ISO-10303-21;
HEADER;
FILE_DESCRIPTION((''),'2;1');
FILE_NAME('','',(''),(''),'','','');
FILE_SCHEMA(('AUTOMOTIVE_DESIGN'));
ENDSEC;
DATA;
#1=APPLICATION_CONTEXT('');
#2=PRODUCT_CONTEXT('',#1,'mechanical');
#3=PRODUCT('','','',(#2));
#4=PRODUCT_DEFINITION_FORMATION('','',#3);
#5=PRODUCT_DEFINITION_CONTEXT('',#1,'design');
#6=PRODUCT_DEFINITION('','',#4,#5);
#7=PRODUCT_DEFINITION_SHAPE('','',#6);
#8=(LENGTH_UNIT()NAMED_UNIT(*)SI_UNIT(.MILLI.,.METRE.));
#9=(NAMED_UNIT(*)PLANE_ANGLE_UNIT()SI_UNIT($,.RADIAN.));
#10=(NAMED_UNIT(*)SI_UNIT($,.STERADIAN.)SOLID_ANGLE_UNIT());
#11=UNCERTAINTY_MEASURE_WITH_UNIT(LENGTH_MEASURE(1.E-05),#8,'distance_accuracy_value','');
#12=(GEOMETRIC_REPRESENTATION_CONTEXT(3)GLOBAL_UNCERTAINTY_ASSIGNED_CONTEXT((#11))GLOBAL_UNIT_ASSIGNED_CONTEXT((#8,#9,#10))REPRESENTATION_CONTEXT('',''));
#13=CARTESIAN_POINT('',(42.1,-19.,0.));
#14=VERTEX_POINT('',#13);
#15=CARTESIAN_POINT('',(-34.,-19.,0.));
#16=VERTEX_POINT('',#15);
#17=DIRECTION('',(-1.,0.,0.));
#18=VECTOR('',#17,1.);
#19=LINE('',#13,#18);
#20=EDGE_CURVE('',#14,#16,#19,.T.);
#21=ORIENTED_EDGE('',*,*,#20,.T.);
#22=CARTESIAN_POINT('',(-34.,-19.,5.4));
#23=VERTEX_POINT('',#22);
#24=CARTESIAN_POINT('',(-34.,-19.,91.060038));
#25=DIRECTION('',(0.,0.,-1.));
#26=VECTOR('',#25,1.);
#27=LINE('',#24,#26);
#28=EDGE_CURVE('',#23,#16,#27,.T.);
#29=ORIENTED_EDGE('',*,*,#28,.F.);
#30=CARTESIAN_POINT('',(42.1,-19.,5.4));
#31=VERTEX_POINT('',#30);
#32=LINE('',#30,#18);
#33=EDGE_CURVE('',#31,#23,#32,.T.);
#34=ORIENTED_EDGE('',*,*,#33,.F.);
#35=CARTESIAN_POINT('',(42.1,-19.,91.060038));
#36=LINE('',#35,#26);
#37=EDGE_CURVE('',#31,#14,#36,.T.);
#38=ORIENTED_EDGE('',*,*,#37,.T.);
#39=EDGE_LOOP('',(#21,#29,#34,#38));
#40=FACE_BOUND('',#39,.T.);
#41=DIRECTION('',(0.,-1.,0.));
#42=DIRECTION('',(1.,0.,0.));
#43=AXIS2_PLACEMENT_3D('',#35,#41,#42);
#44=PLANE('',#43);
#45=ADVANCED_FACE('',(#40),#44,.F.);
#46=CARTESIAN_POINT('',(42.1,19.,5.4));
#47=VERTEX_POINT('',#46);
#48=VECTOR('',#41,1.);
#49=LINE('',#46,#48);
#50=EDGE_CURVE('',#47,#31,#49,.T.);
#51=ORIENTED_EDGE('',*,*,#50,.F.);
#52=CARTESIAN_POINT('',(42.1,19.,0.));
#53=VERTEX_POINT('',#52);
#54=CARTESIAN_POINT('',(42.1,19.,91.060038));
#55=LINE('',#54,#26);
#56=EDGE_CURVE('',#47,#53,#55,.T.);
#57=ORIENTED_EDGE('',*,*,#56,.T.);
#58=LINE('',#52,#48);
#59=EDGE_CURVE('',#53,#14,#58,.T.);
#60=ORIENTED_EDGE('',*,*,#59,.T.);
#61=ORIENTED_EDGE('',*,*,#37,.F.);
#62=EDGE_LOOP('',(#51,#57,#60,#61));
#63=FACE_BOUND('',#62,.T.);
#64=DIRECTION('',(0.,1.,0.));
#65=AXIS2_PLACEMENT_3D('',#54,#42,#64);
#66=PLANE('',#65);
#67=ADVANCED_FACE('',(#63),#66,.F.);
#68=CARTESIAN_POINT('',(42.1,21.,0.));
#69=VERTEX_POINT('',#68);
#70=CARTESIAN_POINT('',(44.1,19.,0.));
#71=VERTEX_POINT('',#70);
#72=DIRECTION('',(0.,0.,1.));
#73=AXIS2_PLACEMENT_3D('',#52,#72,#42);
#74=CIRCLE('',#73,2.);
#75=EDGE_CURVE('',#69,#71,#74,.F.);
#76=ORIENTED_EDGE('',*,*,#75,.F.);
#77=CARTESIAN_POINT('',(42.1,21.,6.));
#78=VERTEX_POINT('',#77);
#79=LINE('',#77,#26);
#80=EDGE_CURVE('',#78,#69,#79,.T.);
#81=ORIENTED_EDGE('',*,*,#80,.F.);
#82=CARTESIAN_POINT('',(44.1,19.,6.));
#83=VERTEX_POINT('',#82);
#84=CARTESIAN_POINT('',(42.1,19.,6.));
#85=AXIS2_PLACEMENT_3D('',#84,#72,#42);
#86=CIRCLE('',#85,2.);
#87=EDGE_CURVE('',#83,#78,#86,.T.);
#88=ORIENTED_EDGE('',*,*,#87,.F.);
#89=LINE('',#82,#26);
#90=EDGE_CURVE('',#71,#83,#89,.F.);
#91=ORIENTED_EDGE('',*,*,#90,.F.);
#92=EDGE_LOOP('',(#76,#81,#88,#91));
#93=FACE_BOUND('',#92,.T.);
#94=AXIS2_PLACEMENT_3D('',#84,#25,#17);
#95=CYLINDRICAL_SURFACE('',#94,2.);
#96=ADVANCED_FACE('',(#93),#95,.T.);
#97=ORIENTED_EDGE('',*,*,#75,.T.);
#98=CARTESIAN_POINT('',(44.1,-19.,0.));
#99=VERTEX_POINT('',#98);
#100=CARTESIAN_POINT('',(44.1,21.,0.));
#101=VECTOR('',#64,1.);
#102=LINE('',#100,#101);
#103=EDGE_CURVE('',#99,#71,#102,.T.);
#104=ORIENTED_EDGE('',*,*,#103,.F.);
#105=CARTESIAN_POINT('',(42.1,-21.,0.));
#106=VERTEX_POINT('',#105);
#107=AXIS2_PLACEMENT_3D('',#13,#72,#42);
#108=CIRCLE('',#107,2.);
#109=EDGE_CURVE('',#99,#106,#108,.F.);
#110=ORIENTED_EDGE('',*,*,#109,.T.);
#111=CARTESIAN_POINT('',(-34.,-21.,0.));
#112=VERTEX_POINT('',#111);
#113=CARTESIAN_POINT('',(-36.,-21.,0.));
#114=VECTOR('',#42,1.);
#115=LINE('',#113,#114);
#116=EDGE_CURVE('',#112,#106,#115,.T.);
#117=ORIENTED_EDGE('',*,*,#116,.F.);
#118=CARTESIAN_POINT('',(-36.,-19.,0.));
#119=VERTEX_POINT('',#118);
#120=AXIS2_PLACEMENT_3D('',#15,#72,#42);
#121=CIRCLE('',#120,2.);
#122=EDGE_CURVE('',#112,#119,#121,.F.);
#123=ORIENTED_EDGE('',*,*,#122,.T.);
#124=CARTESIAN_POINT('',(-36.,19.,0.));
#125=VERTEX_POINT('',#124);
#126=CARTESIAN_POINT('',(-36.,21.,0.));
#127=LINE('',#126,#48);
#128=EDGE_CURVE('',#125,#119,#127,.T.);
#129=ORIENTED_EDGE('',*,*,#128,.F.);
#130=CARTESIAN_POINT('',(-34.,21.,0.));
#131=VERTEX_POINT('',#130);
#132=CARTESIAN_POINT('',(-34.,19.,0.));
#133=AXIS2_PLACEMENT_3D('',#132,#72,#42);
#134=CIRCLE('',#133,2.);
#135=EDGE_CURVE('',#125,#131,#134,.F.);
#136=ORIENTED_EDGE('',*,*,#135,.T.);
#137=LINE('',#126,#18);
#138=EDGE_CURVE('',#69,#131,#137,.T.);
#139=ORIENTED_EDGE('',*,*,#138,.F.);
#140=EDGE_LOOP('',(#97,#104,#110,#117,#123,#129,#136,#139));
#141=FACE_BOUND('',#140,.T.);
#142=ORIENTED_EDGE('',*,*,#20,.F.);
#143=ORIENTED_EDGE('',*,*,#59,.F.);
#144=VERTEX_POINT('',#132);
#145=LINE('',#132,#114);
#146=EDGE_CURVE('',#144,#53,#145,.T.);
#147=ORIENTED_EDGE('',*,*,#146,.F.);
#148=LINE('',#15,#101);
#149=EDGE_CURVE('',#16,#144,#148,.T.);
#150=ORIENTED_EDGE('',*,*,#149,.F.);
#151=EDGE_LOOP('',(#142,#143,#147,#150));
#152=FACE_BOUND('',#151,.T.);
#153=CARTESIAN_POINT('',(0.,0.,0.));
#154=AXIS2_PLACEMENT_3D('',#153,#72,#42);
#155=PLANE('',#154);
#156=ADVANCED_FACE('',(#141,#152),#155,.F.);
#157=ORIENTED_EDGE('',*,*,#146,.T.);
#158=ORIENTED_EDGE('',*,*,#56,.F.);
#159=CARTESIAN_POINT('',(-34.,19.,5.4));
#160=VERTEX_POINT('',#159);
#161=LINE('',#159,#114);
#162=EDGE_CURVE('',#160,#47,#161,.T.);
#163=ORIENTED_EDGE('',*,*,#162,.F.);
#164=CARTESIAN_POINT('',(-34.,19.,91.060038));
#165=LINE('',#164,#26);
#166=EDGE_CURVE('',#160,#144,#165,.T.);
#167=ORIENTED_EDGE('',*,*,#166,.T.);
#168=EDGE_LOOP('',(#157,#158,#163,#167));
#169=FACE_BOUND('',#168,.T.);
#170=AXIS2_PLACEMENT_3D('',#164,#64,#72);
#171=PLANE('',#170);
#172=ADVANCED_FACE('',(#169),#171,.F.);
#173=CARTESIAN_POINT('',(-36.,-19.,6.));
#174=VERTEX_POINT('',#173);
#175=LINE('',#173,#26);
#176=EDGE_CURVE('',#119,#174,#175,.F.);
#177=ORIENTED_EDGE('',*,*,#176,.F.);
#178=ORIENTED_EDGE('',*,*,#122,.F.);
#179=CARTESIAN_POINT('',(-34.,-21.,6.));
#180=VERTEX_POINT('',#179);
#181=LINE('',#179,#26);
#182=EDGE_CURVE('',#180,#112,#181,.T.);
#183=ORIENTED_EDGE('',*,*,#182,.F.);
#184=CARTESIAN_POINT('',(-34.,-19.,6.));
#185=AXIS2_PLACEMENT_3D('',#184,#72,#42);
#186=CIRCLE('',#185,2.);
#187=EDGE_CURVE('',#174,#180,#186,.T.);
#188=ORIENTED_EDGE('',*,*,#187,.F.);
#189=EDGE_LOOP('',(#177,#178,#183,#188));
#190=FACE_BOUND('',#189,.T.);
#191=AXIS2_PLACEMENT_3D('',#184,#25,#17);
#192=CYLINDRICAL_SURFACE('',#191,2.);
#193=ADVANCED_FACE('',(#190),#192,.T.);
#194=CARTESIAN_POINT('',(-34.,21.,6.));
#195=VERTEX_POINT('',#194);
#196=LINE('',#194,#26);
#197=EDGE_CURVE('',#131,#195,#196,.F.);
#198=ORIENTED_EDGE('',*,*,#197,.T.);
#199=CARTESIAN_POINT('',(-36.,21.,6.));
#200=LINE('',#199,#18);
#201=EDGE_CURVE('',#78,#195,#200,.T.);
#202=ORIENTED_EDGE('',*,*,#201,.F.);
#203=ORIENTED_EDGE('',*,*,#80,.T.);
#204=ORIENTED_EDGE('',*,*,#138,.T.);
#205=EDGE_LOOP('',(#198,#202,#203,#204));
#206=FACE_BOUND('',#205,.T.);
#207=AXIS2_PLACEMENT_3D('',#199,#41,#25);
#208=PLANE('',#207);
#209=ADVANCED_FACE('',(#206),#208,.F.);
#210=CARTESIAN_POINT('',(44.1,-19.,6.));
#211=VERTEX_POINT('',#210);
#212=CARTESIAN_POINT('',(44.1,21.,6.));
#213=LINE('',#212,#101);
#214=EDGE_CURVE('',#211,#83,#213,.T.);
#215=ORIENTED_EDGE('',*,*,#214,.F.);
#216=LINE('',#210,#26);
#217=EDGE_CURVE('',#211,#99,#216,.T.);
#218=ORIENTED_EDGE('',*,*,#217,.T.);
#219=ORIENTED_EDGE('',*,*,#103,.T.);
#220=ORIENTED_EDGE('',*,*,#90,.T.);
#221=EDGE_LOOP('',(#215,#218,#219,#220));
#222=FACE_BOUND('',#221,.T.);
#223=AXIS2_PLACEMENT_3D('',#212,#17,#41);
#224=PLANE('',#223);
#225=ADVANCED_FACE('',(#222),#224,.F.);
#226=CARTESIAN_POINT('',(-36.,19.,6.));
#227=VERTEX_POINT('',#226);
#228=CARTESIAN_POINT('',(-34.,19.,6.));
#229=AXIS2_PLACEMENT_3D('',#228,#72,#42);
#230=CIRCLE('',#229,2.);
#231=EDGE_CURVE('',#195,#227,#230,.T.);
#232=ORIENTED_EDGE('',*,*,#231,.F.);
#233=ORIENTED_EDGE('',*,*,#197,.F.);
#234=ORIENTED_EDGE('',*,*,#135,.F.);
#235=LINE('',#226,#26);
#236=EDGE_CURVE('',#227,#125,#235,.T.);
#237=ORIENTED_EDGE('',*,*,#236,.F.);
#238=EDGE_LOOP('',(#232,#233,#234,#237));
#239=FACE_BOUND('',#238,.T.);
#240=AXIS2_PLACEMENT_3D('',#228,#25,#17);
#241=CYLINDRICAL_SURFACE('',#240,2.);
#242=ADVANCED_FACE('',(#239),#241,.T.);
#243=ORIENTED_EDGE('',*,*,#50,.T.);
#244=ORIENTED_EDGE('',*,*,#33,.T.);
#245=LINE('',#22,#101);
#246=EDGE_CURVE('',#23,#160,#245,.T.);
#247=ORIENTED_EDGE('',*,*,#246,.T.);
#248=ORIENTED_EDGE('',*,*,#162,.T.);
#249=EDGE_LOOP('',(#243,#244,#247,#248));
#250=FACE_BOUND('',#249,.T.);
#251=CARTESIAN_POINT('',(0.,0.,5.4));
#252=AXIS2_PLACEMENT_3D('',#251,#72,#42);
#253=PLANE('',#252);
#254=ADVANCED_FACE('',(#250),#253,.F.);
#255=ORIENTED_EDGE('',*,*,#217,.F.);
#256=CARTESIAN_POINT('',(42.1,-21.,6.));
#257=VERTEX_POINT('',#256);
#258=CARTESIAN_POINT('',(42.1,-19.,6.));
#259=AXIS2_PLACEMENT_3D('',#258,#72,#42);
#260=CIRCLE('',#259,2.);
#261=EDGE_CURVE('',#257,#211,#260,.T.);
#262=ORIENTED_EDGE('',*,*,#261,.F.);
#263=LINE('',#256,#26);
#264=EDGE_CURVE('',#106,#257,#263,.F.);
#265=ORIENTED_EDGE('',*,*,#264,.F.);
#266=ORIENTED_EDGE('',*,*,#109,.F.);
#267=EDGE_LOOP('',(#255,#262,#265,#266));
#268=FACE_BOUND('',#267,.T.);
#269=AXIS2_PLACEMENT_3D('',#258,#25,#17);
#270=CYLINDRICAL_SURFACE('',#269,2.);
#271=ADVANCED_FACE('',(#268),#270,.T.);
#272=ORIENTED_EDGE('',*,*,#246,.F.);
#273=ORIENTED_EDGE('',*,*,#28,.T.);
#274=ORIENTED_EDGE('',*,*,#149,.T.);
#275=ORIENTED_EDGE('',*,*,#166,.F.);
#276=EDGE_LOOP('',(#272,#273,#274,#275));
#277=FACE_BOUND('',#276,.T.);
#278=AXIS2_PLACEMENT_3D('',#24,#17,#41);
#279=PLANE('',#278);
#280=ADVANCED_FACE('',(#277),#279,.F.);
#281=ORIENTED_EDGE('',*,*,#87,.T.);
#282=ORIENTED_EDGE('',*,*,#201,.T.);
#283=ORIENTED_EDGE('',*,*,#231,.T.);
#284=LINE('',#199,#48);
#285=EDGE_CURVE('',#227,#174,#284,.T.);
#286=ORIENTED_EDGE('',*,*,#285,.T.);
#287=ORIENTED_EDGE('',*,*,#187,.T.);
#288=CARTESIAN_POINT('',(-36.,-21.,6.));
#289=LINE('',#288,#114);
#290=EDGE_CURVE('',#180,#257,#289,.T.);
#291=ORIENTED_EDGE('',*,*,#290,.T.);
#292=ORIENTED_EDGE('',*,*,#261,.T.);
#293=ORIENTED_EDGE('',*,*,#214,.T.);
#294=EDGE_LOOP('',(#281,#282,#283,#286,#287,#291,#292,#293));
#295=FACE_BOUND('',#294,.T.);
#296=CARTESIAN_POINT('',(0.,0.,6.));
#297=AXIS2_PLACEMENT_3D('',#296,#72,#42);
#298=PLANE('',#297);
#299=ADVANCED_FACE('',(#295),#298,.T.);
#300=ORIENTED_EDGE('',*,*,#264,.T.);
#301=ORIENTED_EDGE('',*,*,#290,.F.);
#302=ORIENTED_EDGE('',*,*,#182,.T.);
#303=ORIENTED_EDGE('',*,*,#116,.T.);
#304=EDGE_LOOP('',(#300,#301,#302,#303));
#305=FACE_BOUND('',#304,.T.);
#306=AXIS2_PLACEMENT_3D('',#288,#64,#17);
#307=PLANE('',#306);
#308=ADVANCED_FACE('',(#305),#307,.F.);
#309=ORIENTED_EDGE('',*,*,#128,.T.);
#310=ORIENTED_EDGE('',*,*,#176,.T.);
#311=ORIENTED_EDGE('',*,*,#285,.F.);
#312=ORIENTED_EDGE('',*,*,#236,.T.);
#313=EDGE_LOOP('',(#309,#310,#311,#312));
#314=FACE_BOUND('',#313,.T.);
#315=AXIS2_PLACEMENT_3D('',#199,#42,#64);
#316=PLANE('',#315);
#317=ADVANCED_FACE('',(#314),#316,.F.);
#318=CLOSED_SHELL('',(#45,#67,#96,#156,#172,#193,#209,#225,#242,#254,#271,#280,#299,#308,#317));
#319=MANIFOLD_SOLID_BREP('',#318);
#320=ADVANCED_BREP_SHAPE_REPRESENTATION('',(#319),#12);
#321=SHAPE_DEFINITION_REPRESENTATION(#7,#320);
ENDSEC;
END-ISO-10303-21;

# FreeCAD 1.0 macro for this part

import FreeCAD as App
import Part
import Sketcher
Q = App.Units.Quantity


def edges_at(feature, points):
    """Names of the edges that pass closest to the given points."""
    edges = feature.Shape.Edges
    near = lambda p: min(range(len(edges)), key=lambda i: edges[i].distToShape(Part.Vertex(*p))[0])
    return sorted({f"Edge{near(p) + 1}" for p in points})

doc = App.newDocument("Part")
body = doc.addObject("PartDesign::Body", "Body")

sketch1 = body.newObject("Sketcher::SketchObject", "Sketch")
sketch1.AttachmentSupport = (doc.getObject("XY_Plane"), [""])
sketch1.MapMode = "FlatFace"
sketch1.addGeometry([
    Part.LineSegment(App.Vector(-36, 21, 0), App.Vector(-36, -21, 0)),
    Part.LineSegment(App.Vector(-36, -21, 0), App.Vector(44.1, -21, 0)),
    Part.LineSegment(App.Vector(44.1, -21, 0), App.Vector(44.1, 21, 0)),
    Part.LineSegment(App.Vector(44.1, 21, 0), App.Vector(-36, 21, 0)),
], False)
sketch1.addConstraint([
    Sketcher.Constraint("Coincident", 0, 2, 1, 1),
    Sketcher.Constraint("Coincident", 1, 2, 2, 1),
    Sketcher.Constraint("Coincident", 2, 2, 3, 1),
    Sketcher.Constraint("Coincident", 3, 2, 0, 1),
    Sketcher.Constraint("Vertical", 0),
    Sketcher.Constraint("Horizontal", 1),
    Sketcher.Constraint("Vertical", 2),
    Sketcher.Constraint("Horizontal", 3),
    Sketcher.Constraint("DistanceY", 0, 2, 0, 1, Q("42 mm")),
    Sketcher.Constraint("DistanceX", 1, 1, 1, 2, Q("80.1 mm")),
    Sketcher.Constraint("DistanceX", 0, 2, -1, 1, Q("36 mm")),
    Sketcher.Constraint("DistanceY", 0, 2, -1, 1, Q("21 mm")),
])
pad1 = body.newObject("PartDesign::Pad", "Pad")
pad1.Profile = sketch1
pad1.Length = 6

sketch2 = body.newObject("Sketcher::SketchObject", "Sketch001")
sketch2.AttachmentSupport = (doc.getObject("XY_Plane"), [""])
sketch2.MapMode = "FlatFace"
sketch2.addGeometry([
    Part.LineSegment(App.Vector(42.1, 19, 0), App.Vector(42.1, -19, 0)),
    Part.LineSegment(App.Vector(42.1, -19, 0), App.Vector(-34, -19, 0)),
    Part.LineSegment(App.Vector(-34, -19, 0), App.Vector(-34, 19, 0)),
    Part.LineSegment(App.Vector(-34, 19, 0), App.Vector(42.1, 19, 0)),
], False)
sketch2.addConstraint([
    Sketcher.Constraint("Coincident", 0, 2, 1, 1),
    Sketcher.Constraint("Coincident", 1, 2, 2, 1),
    Sketcher.Constraint("Coincident", 2, 2, 3, 1),
    Sketcher.Constraint("Coincident", 3, 2, 0, 1),
    Sketcher.Constraint("Vertical", 0),
    Sketcher.Constraint("Horizontal", 1),
    Sketcher.Constraint("Vertical", 2),
    Sketcher.Constraint("Horizontal", 3),
    Sketcher.Constraint("DistanceY", 0, 2, 0, 1, Q("38 mm")),
    Sketcher.Constraint("DistanceX", 1, 2, 1, 1, Q("76.1 mm")),
    Sketcher.Constraint("DistanceY", 0, 2, -1, 1, Q("19 mm")),
    Sketcher.Constraint("DistanceX", 1, 2, -1, 1, Q("34 mm")),
])
pocket1 = body.newObject("PartDesign::Pocket", "Pocket")
pocket1.Profile = sketch2
pocket1.Length = 5.4
pocket1.Reversed = True
doc.recompute()

fillet = body.newObject("PartDesign::Fillet", "Fillet")
fillet.Base = (pocket1, edges_at(pocket1, [
    (-36, 21, 3),
    (44.1, 21, 3),
    (44.1, -21, 3),
    (-36, -21, 3),
]))
fillet.Radius = 2

doc.recompute()
